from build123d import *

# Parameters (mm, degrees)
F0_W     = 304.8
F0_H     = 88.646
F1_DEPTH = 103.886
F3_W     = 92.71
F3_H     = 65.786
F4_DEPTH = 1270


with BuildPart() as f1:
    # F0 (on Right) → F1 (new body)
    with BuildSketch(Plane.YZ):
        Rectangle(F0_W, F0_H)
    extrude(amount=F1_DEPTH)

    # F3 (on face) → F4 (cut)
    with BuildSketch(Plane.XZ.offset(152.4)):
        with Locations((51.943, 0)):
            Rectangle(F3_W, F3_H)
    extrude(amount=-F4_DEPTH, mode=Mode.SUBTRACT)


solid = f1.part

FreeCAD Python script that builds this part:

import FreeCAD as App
import Part
import Sketcher
from FreeCAD import Vector
Q = App.Units.Quantity


def add_polygon(sketch, points):
    """Adds a closed chain of lines whose ends are joined by coincident constraints."""
    first, n = sketch.GeometryCount, len(points)
    for a, b in zip(points, points[1:] + points[:1]):
        sketch.addGeometry(Part.LineSegment(App.Vector(*a, 0), App.Vector(*b, 0)), False)
    for i in range(n):
        sketch.addConstraint(Sketcher.Constraint("Coincident", first + i, 2, first + (i + 1) % n, 1))

doc = App.newDocument("Part")
body = doc.addObject("PartDesign::Body", "Body")

# Sketch on YZ plane
sketch1 = body.newObject("Sketcher::SketchObject", "Sketch")
sketch1.AttachmentSupport = (doc.getObject("YZ_Plane"), [""])
sketch1.MapMode = "FlatFace"
add_polygon(sketch1, [(-152, 44), (-152, -44), (152, -44), (152, 44)])  # lines 0-3
sketch1.addConstraint(Sketcher.Constraint("Vertical", 0))
sketch1.addConstraint(Sketcher.Constraint("Horizontal", 1))
sketch1.addConstraint(Sketcher.Constraint("Vertical", 2))
sketch1.addConstraint(Sketcher.Constraint("Horizontal", 3))
sketch1.addConstraint(Sketcher.Constraint("Symmetric", 0, 2, 2, 2, -1, 1))
sketch1.addConstraint(Sketcher.Constraint("DistanceX", 1, 1, 1, 2, Q("12 in")))
sketch1.addConstraint(Sketcher.Constraint("DistanceY", 0, 2, 0, 1, Q("3.49 in")))
pad1 = body.newObject("PartDesign::Pad", "Pad")
pad1.Profile = sketch1
pad1.Length = Q("4.09 in")

# Sketch on XZ plane
sketch2 = body.newObject("Sketcher::SketchObject", "Sketch001")
sketch2.AttachmentSupport = (doc.getObject("XZ_Plane"), [""])
sketch2.MapMode = "FlatFace"
sketch2.AttachmentOffset = App.Placement(Vector(0, 0, 6 * 25.4), App.Rotation())
add_polygon(sketch2, [(6, 33), (6, -33), (98, -33), (98, 33)])  # lines 0-3
sketch2.addConstraint(Sketcher.Constraint("Vertical", 0))
sketch2.addConstraint(Sketcher.Constraint("Horizontal", 1))
sketch2.addConstraint(Sketcher.Constraint("Vertical", 2))
sketch2.addConstraint(Sketcher.Constraint("Horizontal", 3))
sketch2.addConstraint(Sketcher.Constraint("DistanceX", 1, 1, 1, 2, Q("3.65 in")))
sketch2.addConstraint(Sketcher.Constraint("DistanceY", 0, 2, 0, 1, Q("2.59 in")))
sketch2.addConstraint(Sketcher.Constraint("DistanceX", -1, 1, 0, 2, Q("0.22 in")))
sketch2.addConstraint(Sketcher.Constraint("DistanceY", 0, 2, -1, 1, Q("1.295 in")))
pocket1 = body.newObject("PartDesign::Pocket", "Pocket")
pocket1.Profile = sketch2
pocket1.Length = Q("50 in")

doc.recompute()
